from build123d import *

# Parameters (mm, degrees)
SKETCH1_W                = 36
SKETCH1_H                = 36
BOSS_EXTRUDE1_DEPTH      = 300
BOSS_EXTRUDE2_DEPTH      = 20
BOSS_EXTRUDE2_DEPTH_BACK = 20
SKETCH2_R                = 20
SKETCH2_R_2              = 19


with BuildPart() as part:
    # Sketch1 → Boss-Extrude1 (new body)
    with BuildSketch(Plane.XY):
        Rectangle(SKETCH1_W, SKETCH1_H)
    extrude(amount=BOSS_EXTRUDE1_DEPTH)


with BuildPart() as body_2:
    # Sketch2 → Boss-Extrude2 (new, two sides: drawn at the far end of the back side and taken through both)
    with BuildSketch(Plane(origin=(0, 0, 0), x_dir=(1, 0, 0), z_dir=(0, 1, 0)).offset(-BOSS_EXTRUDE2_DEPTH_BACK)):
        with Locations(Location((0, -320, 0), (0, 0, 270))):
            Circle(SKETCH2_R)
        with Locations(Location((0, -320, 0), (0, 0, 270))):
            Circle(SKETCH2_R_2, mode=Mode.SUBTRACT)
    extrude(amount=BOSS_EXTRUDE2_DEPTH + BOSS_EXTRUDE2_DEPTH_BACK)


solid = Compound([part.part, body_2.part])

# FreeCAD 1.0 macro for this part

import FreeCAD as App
import Part
import Sketcher
Q = App.Units.Quantity


def add_polygon(sketch, points):
    """Adds a closed chain of lines whose ends are joined by coincident constraints."""
    first, n = sketch.GeometryCount, len(points)
    for a, b in zip(points, points[1:] + points[:1]):
        sketch.addGeometry(Part.LineSegment(App.Vector(*a, 0), App.Vector(*b, 0)), False)
    for i in range(n):
        sketch.addConstraint(Sketcher.Constraint("Coincident", first + i, 2, first + (i + 1) % n, 1))

doc = App.newDocument("Part")
body = doc.addObject("PartDesign::Body", "Body")

# Sketch on XY plane
sketch1 = body.newObject("Sketcher::SketchObject", "Sketch")
sketch1.AttachmentSupport = (doc.getObject("XY_Plane"), [""])
sketch1.MapMode = "FlatFace"
add_polygon(sketch1, [(-18, 18), (-18, -18), (18, -18), (18, 18)])  # lines 0-3
sketch1.addConstraint([
    Sketcher.Constraint("Vertical", 0),
    Sketcher.Constraint("Horizontal", 1),
    Sketcher.Constraint("Vertical", 2),
    Sketcher.Constraint("Horizontal", 3),
    Sketcher.Constraint("Symmetric", 0, 2, 2, 2, -1, 1),
    Sketcher.Constraint("Equal", 3, 0),
    Sketcher.Constraint("DistanceX", 1, 1, 1, 2, Q("36 mm")),
])
pad1 = body.newObject("PartDesign::Pad", "Pad")
pad1.Profile = sketch1
pad1.Length = 300
body2 = doc.addObject("PartDesign::Body", "Body001")

# Sketch on XZ plane
sketch2 = body2.newObject("Sketcher::SketchObject", "Sketch001")
sketch2.AttachmentSupport = (doc.getObject("XZ_Plane001"), [""])
sketch2.MapMode = "FlatFace"
sketch2.addGeometry([
    Part.Circle(App.Vector(0, 320, 0), App.Vector(0, 0, 1), 20),
    Part.Circle(App.Vector(0, 320, 0), App.Vector(0, 0, 1), 19),
], False)
sketch2.addConstraint([
    Sketcher.Constraint("Coincident", 1, 3, 0, 3),
    Sketcher.Constraint("PointOnObject", 0, 3, -2),
    Sketcher.Constraint("Diameter", 0, Q("40 mm")),
    Sketcher.Constraint("Diameter", 1, Q("38 mm")),
    Sketcher.Constraint("DistanceY", -1, 1, 0, 3, Q("320 mm")),
])
pad2 = body2.newObject("PartDesign::Pad", "Pad001")
pad2.Profile = sketch2
pad2.Type = "TwoLengths"
pad2.Length = 20
pad2.Length2 = 20
pad2.Reversed = True

doc.recompute()
